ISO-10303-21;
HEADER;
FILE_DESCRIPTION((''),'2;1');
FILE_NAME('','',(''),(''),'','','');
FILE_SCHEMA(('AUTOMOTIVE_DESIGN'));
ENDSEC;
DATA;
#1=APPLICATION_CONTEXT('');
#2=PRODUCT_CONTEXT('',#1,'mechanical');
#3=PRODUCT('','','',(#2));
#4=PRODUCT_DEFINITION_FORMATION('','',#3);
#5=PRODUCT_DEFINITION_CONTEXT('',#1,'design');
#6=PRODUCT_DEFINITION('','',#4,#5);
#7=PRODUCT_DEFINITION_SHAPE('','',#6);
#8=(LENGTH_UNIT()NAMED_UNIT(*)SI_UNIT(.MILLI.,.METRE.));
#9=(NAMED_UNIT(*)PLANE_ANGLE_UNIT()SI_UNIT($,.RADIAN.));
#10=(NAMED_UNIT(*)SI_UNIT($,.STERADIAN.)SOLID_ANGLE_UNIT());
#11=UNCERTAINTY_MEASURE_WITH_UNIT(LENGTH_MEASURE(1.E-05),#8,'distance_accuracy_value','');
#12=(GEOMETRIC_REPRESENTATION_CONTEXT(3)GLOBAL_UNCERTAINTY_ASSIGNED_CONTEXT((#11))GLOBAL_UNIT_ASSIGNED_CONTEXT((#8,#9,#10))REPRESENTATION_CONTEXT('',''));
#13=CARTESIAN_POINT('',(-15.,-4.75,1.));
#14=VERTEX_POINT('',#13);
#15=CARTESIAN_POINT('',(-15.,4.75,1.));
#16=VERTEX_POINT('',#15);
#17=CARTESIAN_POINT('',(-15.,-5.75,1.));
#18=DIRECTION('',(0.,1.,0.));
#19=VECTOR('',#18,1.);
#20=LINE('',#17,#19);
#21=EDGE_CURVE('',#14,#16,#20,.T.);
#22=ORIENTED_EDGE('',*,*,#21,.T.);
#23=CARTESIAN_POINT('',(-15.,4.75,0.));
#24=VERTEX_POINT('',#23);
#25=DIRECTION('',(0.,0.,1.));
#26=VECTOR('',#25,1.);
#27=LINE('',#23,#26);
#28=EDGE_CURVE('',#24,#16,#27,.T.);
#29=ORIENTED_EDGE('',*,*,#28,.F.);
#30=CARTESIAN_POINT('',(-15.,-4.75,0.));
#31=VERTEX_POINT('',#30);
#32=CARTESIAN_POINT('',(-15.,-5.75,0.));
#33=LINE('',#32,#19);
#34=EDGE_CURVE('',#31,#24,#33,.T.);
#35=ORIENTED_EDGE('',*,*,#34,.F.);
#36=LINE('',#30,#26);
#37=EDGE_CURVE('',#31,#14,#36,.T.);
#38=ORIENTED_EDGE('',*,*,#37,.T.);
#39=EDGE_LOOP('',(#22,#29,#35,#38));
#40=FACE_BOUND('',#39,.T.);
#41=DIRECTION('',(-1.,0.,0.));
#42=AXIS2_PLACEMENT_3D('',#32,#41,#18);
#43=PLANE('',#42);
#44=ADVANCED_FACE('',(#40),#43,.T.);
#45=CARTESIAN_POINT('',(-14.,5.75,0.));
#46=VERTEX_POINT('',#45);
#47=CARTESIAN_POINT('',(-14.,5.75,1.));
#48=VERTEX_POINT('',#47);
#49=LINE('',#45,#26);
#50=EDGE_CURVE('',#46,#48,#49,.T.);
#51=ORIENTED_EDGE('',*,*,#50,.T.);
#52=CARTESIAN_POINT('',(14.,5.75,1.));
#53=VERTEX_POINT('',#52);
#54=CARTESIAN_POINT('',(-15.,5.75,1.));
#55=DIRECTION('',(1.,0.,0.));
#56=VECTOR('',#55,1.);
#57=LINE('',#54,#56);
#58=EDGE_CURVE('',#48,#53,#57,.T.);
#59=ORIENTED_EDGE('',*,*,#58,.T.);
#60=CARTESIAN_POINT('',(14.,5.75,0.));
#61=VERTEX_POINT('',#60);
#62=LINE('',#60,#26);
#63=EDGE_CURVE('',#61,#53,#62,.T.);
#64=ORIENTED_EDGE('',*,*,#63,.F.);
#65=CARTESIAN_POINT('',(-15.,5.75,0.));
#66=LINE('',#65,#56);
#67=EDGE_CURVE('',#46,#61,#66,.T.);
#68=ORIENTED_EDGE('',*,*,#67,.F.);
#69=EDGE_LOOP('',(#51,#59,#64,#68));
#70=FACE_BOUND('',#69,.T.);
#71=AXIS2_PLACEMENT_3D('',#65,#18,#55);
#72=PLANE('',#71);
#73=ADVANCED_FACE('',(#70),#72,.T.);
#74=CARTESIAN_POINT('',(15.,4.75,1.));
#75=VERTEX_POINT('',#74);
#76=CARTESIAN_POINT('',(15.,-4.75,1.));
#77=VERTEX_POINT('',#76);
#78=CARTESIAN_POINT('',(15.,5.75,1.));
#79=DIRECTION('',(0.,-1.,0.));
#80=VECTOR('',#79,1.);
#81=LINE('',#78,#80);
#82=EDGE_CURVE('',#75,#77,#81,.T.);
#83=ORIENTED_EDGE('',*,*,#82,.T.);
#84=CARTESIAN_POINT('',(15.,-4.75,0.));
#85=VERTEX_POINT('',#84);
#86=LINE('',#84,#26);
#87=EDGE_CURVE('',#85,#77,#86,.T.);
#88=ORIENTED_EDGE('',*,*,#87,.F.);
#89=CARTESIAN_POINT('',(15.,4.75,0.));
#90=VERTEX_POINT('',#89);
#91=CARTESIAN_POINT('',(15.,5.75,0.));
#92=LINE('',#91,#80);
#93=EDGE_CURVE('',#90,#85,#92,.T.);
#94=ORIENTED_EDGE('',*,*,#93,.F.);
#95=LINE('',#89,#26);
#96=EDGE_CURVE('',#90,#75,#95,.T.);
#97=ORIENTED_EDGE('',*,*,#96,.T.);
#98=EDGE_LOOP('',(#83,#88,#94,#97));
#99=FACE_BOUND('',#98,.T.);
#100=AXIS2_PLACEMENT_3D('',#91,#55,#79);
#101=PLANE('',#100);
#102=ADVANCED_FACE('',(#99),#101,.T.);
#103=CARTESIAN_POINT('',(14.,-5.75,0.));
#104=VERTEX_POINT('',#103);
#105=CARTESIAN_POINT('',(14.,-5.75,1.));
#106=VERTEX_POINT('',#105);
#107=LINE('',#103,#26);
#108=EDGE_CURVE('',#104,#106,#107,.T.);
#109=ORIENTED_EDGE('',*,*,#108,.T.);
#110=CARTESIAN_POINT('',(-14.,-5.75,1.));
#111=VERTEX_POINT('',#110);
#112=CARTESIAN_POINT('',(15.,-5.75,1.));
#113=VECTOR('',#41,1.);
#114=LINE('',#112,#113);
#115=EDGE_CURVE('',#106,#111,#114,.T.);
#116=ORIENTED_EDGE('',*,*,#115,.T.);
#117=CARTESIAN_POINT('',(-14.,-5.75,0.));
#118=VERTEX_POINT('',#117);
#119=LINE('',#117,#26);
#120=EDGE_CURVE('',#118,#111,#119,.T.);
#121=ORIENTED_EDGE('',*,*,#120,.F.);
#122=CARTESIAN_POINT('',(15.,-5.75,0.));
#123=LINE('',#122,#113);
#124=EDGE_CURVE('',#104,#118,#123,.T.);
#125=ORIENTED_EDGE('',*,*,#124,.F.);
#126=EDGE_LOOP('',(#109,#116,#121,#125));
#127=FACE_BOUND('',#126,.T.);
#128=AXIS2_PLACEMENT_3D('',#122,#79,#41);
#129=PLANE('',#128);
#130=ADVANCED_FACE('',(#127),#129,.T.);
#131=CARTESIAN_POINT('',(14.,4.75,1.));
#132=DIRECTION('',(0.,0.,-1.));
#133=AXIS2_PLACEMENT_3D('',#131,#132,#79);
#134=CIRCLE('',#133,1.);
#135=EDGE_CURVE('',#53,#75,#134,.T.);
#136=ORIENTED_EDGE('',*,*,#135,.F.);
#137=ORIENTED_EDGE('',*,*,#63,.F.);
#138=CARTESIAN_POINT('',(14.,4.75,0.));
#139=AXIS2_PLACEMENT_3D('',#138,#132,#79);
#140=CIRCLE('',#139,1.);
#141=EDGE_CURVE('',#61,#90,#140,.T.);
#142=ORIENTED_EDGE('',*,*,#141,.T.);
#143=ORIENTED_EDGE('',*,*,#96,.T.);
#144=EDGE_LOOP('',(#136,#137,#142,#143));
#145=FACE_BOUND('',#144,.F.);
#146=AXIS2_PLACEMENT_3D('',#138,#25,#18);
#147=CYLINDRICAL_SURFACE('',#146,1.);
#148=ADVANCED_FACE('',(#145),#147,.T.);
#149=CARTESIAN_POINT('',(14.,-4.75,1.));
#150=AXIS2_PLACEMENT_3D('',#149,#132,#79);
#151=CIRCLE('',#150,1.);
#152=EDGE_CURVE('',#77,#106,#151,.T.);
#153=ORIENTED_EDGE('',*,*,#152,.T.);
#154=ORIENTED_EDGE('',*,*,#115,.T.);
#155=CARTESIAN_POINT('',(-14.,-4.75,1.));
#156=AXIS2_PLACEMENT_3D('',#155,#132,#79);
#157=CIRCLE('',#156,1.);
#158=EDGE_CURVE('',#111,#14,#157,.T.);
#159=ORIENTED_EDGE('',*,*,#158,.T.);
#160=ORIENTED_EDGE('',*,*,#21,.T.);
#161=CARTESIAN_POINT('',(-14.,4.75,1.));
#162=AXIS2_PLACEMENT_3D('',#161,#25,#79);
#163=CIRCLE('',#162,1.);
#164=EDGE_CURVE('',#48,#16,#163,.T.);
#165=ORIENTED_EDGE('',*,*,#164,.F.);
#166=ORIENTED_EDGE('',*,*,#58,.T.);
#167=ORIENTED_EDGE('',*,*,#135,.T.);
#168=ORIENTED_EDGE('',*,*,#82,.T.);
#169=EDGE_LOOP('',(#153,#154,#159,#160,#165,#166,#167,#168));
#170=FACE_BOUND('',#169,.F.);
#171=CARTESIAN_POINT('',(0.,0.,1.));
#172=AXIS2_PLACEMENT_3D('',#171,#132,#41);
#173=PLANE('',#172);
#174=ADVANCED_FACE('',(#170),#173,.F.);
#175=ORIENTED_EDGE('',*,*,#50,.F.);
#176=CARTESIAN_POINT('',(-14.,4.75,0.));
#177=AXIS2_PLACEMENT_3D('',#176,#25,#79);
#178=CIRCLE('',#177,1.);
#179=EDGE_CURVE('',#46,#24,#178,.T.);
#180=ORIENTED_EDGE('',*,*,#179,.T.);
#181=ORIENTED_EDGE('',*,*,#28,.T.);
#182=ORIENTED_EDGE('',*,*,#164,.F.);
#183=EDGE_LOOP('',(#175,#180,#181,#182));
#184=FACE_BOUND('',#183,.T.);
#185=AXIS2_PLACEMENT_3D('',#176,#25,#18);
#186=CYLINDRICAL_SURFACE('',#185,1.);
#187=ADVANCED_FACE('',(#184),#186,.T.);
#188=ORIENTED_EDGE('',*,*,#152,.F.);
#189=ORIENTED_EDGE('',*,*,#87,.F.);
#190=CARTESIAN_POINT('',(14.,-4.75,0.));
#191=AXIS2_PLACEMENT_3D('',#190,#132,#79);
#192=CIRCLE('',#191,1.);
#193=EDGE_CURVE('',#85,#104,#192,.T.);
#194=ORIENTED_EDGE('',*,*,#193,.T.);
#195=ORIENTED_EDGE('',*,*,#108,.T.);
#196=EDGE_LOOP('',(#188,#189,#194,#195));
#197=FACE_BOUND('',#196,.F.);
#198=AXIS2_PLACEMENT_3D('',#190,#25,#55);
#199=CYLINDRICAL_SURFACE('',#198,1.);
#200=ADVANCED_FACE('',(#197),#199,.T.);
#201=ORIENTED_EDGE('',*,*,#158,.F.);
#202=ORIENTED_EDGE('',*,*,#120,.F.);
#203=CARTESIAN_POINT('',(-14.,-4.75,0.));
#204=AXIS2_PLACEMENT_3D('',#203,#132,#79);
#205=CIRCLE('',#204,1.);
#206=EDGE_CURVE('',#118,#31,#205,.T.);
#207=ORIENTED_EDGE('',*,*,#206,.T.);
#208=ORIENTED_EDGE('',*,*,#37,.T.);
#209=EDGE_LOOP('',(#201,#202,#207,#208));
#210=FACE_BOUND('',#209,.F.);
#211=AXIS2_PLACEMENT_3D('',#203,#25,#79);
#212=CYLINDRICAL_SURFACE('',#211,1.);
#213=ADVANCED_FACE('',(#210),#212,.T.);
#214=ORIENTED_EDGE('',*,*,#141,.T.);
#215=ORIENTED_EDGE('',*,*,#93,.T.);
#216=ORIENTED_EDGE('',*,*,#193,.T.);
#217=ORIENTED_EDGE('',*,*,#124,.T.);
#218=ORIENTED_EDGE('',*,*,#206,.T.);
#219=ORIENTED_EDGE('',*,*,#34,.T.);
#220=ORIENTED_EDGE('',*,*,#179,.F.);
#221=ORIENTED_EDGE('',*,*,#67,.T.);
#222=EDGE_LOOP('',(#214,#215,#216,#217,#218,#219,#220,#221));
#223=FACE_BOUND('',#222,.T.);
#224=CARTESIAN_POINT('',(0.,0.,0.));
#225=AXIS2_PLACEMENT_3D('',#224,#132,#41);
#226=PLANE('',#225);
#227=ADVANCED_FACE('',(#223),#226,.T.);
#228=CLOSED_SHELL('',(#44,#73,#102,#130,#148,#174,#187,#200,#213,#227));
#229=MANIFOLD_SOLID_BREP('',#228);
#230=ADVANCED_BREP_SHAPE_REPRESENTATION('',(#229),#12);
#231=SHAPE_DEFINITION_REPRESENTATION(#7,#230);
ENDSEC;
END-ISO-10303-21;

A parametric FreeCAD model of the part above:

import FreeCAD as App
import Part
import Sketcher


def edges_at(feature, points):
    """Names of the edges that pass closest to the given points."""
    edges = feature.Shape.Edges
    near = lambda p: min(range(len(edges)), key=lambda i: edges[i].distToShape(Part.Vertex(*p))[0])
    return sorted({f"Edge{near(p) + 1}" for p in points})


def add_polygon(sketch, points):
    """Adds a closed chain of lines whose ends are joined by coincident constraints."""
    first, n = sketch.GeometryCount, len(points)
    for a, b in zip(points, points[1:] + points[:1]):
        sketch.addGeometry(Part.LineSegment(App.Vector(*a, 0), App.Vector(*b, 0)), False)
    for i in range(n):
        sketch.addConstraint(Sketcher.Constraint("Coincident", first + i, 2, first + (i + 1) % n, 1))

doc = App.newDocument("Part")
body = doc.addObject("PartDesign::Body", "Body")

sketch1 = body.newObject("Sketcher::SketchObject", "Sketch")
sketch1.AttachmentSupport = (doc.getObject("XY_Plane"), [""])
sketch1.MapMode = "FlatFace"
add_polygon(sketch1, [(15, 6), (-15, 6), (-15, -6), (15, -6)])
sketch1.addConstraint([
    Sketcher.Constraint("Horizontal", 0),
    Sketcher.Constraint("Vertical", 1),
    Sketcher.Constraint("Horizontal", 2),
    Sketcher.Constraint("Vertical", 3),
    Sketcher.Constraint("Symmetric", 0, 2, 2, 2, -1, 1),
    Sketcher.Constraint("DistanceX", 0, 2, -1, 1, 15.0),
    Sketcher.Constraint("DistanceY", 1, 2, 1, 1, 11.5),
])
pad1 = body.newObject("PartDesign::Pad", "Pad")
pad1.Profile = sketch1
pad1.Length = 1
doc.recompute()

fillet = body.newObject("PartDesign::Fillet", "Fillet")
fillet.Base = (pad1, edges_at(pad1, [
    (-15, -5.75, 0.5),
    (15, -5.75, 0.5),
    (15, 5.75, 0.5),
    (-15, 5.75, 0.5),
]))
fillet.Radius = 1

doc.recompute()
